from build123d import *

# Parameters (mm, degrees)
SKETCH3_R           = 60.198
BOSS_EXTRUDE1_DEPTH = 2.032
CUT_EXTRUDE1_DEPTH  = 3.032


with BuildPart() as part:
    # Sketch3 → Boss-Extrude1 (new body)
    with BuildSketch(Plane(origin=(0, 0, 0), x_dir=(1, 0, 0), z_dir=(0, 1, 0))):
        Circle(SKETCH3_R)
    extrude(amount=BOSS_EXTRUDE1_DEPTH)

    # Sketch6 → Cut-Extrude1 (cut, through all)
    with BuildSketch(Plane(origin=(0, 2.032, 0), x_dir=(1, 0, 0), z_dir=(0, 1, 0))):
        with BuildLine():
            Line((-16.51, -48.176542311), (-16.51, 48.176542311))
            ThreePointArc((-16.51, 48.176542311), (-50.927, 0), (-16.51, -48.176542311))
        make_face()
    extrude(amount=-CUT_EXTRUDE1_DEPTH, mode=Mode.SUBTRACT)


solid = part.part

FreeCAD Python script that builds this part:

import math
import FreeCAD as App
import Part
import Sketcher
from FreeCAD import Vector
Q = App.Units.Quantity

doc = App.newDocument("Part")
body = doc.addObject("PartDesign::Body", "Body")

# Sketch on XZ plane
sketch1 = body.newObject("Sketcher::SketchObject", "Sketch")
sketch1.AttachmentSupport = (doc.getObject("XZ_Plane"), [""])
sketch1.MapMode = "FlatFace"
sketch1.addGeometry(Part.Circle(Vector(0, 0, 0), Vector(0, 0, 1), 60.198), False)
sketch1.addConstraint(Sketcher.Constraint("Coincident", 0, 3, -1, 1))
sketch1.addConstraint(Sketcher.Constraint("Diameter", 0, Q("4.74 in")))
pad1 = body.newObject("PartDesign::Pad", "Pad")
pad1.Profile = sketch1
pad1.Length = Q("0.08 in")
pad1.Reversed = True

# Sketch on XZ plane
sketch2 = body.newObject("Sketcher::SketchObject", "Sketch001")
sketch2.AttachmentSupport = (doc.getObject("XZ_Plane"), [""])
sketch2.MapMode = "FlatFace"
sketch2.AttachmentOffset = App.Placement(Vector(0, 0, -0.08 * 25.4), App.Rotation())
sketch2.addGeometry(Part.LineSegment(Vector(-16.51, 48.176542, 0), Vector(-16.51, -48.176542, 0)), False)
sketch2.addGeometry(Part.ArcOfCircle(Part.Circle(Vector(0, 0, 0), Vector(0, 0, 1), 50.927), math.radians(108.91648), math.radians(251.08352)), False)
sketch2.addConstraint(Sketcher.Constraint("Coincident", 0, 1, 1, 1))
sketch2.addConstraint(Sketcher.Constraint("Coincident", 1, 2, 0, 2))
sketch2.addConstraint(Sketcher.Constraint("Vertical", 0))
sketch2.addConstraint(Sketcher.Constraint("Coincident", 1, 3, -1, 1))
sketch2.addConstraint(Sketcher.Constraint("Radius", 1, Q("2.005 in")))
sketch2.addConstraint(Sketcher.Constraint("DistanceX", 0, 1, -1, 1, Q("0.65 in")))
pocket1 = body.newObject("PartDesign::Pocket", "Pocket")
pocket1.Profile = sketch2
pocket1.Type = "ThroughAll"
pocket1.Reversed = True

doc.recompute()
